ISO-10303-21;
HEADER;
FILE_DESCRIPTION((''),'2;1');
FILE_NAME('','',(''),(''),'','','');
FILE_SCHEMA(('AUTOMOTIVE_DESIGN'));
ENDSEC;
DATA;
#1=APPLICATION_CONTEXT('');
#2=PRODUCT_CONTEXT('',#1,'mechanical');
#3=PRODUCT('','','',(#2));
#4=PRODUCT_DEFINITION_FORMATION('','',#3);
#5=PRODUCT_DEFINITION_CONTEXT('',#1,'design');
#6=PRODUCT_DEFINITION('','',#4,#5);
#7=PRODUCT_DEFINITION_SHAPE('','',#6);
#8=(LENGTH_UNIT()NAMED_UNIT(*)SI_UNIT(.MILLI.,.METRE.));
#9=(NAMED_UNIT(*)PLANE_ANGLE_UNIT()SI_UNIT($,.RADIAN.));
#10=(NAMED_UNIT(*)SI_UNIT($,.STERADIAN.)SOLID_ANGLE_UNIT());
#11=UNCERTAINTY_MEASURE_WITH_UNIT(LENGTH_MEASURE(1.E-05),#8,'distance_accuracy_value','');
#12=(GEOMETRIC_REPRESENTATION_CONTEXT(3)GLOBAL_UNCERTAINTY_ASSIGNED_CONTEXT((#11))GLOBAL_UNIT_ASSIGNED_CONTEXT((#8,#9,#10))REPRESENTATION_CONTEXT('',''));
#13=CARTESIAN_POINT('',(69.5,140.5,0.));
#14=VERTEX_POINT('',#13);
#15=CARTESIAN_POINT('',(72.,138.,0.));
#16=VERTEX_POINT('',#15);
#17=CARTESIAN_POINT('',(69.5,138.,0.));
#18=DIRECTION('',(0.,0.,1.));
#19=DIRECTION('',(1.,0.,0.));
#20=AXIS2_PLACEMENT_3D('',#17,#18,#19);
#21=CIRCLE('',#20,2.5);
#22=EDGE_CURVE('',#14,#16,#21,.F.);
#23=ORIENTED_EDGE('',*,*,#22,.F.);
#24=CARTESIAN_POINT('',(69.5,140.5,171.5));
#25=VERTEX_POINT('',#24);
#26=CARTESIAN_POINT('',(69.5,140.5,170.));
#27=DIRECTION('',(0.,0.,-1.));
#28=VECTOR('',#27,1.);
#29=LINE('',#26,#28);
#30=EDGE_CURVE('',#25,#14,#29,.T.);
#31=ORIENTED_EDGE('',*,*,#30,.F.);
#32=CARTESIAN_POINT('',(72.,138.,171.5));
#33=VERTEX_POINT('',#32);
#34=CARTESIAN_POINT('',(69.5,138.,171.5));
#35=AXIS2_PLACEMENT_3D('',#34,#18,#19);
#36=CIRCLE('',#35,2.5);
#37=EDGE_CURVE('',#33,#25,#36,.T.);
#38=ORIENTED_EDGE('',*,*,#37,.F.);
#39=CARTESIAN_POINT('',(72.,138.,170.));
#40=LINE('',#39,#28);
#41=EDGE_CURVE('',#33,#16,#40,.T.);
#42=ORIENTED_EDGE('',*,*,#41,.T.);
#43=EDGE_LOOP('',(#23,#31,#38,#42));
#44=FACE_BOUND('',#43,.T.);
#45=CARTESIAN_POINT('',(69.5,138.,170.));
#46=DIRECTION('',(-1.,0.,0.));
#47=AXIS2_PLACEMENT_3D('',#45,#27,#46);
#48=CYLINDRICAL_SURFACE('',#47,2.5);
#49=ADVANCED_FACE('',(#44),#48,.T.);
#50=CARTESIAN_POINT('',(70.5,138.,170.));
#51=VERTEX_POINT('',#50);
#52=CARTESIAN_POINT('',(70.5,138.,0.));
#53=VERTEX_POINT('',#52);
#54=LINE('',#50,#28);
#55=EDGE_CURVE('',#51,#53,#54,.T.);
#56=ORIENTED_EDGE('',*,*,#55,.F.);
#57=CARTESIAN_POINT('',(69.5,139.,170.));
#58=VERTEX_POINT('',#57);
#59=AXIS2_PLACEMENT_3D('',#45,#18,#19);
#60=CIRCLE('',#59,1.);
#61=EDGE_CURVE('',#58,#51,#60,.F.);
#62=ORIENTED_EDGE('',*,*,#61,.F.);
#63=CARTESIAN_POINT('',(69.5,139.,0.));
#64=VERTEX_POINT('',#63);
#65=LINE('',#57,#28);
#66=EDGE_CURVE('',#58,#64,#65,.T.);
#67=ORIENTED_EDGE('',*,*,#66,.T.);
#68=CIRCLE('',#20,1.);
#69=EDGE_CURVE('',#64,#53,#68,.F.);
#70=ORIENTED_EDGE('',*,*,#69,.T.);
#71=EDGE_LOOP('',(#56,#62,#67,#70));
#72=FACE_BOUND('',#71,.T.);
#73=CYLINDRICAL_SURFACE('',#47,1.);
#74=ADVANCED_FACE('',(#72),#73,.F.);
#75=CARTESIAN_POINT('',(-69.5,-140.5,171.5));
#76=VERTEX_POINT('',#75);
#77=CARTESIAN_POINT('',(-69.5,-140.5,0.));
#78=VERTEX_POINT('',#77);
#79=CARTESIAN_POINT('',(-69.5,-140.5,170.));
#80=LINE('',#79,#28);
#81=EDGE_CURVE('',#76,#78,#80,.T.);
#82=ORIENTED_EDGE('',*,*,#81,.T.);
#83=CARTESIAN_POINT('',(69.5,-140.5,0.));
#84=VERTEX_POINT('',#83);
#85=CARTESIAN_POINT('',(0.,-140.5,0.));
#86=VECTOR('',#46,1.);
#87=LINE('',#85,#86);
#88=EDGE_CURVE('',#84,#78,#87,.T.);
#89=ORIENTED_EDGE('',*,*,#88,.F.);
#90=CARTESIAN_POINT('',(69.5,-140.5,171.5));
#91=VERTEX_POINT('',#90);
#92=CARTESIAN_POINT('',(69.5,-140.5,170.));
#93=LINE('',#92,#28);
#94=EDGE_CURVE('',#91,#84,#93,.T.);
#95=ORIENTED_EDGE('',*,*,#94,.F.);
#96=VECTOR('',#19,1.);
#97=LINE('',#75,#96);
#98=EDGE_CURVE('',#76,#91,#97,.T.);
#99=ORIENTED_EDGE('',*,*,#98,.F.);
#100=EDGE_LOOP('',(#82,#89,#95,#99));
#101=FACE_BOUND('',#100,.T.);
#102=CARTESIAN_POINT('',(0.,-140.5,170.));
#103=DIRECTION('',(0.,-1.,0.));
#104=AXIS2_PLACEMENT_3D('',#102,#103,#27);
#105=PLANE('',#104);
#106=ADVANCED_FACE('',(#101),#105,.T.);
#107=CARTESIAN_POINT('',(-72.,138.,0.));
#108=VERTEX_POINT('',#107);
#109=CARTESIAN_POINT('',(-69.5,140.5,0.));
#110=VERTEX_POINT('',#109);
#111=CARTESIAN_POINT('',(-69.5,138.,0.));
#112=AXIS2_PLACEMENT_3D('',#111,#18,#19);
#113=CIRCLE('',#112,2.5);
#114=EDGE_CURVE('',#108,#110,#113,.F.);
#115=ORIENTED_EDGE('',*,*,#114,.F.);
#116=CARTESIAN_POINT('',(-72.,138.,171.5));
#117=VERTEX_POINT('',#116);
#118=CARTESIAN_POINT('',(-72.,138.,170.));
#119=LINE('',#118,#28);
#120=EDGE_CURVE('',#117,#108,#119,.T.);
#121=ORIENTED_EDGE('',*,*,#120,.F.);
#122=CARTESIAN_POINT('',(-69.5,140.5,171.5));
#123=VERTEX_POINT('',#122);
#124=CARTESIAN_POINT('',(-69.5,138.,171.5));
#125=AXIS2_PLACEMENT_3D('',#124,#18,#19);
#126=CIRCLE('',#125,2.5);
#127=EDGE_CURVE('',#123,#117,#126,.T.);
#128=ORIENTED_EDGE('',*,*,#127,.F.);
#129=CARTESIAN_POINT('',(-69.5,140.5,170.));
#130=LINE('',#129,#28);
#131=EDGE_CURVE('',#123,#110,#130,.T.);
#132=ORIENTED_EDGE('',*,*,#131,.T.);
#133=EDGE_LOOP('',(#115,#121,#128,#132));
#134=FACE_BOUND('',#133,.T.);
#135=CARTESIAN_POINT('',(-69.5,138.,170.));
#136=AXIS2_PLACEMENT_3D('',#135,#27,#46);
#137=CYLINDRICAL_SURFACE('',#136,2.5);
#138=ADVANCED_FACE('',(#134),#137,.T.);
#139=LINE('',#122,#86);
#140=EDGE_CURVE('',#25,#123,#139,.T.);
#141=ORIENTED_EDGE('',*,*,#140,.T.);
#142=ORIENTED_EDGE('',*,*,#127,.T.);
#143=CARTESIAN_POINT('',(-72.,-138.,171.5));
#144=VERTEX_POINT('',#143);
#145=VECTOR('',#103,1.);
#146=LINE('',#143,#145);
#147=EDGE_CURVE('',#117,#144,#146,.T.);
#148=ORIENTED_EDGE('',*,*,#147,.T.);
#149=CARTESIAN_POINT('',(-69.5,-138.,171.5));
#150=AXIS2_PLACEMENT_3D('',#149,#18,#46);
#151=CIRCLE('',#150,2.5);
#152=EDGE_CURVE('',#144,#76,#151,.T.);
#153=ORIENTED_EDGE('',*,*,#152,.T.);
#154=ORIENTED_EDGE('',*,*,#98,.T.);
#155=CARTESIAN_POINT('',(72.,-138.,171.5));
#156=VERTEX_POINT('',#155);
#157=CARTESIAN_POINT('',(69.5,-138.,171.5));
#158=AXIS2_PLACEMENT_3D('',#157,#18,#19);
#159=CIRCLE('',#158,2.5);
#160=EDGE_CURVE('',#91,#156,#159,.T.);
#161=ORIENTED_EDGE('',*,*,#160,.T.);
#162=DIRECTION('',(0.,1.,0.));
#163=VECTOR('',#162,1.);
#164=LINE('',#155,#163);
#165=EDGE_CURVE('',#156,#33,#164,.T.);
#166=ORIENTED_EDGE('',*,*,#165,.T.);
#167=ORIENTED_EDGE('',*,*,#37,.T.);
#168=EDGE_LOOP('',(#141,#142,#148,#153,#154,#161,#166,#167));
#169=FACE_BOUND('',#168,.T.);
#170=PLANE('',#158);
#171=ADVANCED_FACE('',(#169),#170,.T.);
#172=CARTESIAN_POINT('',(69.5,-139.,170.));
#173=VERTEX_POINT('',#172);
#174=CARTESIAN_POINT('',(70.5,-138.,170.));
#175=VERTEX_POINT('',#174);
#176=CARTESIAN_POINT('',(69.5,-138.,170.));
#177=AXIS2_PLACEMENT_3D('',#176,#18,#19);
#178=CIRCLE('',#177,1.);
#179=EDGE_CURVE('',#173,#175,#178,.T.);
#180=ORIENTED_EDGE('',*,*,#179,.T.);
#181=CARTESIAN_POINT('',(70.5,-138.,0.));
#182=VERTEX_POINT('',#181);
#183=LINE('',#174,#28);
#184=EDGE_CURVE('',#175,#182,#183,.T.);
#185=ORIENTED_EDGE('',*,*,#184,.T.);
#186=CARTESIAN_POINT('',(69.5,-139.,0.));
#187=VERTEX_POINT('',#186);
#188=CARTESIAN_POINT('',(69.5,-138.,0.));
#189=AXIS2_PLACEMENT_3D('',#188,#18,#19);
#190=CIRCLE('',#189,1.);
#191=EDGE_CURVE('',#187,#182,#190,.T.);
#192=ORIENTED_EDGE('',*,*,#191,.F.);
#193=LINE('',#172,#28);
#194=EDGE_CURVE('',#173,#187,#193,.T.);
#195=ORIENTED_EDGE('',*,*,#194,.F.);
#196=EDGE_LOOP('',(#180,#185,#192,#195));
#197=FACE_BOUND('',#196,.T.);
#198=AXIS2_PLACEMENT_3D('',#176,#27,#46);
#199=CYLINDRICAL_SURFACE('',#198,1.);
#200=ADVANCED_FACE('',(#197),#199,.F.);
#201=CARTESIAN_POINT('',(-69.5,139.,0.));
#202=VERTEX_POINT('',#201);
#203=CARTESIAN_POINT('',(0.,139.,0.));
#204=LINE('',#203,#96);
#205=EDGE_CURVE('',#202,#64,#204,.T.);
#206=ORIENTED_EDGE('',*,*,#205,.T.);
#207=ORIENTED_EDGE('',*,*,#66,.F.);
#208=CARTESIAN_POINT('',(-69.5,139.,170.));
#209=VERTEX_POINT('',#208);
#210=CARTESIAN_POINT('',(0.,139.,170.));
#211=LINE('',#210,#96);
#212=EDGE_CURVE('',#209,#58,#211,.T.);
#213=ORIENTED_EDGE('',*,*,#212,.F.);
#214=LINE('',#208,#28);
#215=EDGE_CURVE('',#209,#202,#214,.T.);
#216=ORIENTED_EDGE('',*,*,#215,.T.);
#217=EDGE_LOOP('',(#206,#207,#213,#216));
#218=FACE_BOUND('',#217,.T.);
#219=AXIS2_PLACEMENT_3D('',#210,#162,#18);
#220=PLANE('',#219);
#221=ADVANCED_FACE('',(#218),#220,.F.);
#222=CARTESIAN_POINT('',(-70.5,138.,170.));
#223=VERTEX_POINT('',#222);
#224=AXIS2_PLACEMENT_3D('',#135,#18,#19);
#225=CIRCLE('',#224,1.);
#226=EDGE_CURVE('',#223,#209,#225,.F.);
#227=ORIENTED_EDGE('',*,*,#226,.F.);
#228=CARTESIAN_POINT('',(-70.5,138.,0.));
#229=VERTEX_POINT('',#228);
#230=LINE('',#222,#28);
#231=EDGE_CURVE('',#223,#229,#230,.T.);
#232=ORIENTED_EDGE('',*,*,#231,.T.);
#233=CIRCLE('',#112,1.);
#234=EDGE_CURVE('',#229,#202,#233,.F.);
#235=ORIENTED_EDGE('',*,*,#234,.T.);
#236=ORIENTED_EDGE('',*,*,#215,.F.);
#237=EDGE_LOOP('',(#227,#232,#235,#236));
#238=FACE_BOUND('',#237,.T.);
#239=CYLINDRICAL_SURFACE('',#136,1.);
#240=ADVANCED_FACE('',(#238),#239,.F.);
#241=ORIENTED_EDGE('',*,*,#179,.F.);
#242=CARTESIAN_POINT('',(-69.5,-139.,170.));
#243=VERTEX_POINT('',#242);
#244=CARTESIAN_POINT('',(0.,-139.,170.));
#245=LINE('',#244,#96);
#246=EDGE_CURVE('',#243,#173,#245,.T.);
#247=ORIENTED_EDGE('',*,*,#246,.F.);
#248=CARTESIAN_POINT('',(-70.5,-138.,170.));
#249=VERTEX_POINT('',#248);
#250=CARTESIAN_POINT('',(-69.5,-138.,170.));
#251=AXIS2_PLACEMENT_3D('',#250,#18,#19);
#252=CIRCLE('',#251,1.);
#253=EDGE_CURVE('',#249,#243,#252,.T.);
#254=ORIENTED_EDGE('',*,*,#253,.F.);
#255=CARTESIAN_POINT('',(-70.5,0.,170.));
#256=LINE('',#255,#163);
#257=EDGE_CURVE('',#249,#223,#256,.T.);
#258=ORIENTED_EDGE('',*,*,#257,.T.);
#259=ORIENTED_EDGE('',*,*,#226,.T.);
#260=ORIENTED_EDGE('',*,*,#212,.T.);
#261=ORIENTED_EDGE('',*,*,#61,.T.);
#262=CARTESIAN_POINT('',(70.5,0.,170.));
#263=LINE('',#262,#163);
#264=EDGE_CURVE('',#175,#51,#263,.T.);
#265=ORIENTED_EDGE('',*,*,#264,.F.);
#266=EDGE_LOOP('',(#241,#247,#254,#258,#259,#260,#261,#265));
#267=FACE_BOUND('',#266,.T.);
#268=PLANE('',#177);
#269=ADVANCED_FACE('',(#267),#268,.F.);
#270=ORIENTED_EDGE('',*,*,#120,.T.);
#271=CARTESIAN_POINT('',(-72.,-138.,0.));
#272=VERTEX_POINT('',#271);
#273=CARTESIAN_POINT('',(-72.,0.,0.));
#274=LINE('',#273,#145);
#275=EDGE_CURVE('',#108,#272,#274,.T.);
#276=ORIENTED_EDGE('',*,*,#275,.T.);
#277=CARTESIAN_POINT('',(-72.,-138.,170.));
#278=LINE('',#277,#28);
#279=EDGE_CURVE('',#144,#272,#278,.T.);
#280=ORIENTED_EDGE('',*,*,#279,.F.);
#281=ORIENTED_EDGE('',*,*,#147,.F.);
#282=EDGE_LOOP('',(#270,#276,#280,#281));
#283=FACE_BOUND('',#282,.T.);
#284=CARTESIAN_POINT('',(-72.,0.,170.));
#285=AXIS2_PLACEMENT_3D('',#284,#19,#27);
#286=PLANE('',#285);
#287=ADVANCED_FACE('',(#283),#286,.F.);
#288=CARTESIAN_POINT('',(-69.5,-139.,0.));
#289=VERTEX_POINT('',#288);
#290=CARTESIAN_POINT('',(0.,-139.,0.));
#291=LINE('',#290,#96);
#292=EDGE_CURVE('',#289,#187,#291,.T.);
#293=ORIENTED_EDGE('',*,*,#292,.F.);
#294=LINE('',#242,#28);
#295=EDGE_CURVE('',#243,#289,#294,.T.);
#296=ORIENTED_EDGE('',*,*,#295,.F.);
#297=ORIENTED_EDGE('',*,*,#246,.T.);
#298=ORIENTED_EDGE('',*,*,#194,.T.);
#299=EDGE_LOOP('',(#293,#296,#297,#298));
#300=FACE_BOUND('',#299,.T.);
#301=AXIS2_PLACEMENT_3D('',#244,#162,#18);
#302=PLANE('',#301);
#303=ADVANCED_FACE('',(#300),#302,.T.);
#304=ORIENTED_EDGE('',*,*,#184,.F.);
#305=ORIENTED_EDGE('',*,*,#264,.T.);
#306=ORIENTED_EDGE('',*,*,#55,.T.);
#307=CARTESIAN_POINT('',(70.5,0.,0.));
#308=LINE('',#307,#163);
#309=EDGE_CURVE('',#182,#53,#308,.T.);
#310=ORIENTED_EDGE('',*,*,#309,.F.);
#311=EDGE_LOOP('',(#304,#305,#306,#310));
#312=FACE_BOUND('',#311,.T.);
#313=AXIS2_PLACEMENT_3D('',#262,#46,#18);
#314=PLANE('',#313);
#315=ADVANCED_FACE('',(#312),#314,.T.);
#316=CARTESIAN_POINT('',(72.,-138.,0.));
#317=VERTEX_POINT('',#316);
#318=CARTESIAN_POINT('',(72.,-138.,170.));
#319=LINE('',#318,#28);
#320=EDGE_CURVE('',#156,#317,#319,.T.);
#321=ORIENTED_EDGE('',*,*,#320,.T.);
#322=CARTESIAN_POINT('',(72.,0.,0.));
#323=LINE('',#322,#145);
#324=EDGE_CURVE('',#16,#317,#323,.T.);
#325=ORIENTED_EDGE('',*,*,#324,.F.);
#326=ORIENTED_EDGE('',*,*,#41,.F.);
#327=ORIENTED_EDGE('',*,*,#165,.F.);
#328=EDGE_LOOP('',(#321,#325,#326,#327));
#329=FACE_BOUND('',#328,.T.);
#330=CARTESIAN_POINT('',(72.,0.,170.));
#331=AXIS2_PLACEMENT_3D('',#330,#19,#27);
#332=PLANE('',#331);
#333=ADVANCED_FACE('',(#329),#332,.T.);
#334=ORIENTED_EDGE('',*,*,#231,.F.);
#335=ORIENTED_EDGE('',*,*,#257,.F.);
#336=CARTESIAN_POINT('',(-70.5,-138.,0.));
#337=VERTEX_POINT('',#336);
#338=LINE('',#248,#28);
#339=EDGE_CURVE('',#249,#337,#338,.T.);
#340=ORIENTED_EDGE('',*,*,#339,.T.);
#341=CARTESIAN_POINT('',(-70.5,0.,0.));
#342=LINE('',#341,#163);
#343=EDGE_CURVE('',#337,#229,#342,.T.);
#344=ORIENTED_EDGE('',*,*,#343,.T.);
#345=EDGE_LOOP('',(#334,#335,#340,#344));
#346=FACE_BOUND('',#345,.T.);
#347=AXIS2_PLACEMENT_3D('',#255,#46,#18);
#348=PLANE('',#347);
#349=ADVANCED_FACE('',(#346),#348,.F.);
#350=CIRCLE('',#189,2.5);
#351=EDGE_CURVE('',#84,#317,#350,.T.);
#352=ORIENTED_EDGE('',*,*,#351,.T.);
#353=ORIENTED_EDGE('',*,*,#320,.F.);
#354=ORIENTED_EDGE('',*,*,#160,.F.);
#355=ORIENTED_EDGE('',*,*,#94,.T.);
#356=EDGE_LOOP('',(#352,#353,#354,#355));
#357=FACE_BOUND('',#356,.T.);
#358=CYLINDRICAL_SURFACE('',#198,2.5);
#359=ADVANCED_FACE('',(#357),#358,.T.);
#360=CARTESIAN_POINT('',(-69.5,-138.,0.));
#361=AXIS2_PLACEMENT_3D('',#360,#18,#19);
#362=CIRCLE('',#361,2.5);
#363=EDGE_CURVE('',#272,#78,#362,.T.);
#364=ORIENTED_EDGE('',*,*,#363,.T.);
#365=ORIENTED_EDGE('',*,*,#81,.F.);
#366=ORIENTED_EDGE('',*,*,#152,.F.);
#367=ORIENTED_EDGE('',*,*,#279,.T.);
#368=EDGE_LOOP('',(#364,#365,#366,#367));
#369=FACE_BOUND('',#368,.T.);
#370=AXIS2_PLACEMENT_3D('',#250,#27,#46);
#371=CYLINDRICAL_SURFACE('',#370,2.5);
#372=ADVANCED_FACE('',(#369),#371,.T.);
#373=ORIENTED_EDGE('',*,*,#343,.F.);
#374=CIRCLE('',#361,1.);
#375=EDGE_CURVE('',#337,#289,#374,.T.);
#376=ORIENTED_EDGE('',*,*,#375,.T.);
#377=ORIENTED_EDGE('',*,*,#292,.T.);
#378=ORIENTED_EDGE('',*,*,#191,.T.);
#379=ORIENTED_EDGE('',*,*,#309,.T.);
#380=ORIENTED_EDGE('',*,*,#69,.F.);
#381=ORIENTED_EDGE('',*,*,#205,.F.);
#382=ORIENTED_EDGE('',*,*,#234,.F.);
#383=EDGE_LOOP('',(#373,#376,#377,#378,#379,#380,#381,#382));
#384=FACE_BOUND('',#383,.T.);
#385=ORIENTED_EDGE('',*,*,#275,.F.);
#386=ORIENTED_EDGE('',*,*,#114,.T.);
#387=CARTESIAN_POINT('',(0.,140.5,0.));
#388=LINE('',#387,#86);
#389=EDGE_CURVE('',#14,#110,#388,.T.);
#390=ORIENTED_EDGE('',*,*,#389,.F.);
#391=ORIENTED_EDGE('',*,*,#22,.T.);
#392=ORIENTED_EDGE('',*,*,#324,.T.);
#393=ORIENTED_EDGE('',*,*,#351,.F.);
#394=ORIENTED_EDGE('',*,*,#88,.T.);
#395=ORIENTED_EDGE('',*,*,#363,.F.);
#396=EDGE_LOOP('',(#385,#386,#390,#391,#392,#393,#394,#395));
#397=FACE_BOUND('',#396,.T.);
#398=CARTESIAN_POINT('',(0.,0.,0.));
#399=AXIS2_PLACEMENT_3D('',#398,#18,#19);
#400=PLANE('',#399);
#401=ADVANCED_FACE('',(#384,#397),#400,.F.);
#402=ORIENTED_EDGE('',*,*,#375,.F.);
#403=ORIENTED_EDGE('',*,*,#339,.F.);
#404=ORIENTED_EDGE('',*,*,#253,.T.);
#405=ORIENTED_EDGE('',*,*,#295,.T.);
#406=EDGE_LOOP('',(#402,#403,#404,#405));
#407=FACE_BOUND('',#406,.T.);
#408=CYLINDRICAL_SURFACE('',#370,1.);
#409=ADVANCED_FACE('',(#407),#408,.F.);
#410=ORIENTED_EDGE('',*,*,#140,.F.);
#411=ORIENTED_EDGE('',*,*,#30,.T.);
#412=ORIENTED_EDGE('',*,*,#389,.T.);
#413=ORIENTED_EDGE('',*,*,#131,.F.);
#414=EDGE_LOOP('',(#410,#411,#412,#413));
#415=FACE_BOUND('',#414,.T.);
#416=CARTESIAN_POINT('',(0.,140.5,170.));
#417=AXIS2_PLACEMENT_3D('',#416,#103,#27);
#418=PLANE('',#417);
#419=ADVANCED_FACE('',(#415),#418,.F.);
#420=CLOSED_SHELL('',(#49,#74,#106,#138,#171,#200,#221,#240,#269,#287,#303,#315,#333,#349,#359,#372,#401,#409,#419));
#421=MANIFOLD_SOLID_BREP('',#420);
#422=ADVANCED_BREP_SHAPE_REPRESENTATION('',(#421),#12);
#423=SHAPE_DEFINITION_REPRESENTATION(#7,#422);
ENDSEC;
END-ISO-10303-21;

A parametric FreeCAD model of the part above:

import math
import FreeCAD as App
import Part
import Sketcher

V = App.Vector

doc = App.newDocument("Part")
params = doc.addObject("Spreadsheet::Sheet", "Params")
for row, (alias, value) in enumerate([
    ("sketch1_radius", "1 mm"),
    ("sketch1_radius2", "2.5 mm"),
    ("sketch1_width", "139 mm"),
    ("sketch1_height", "276 mm"),
    ("pad1_length", "170 mm"),
    ("sketch2_radius", "2.5 mm"),
    ("sketch2_width", "139 mm"),
    ("sketch2_height", "276 mm"),
    ("pad2_length", "1.5 mm"),
], start=1):
    params.set(f"A{row}", alias)
    params.set(f"B{row}", "=" + value)
    params.setAlias(f"B{row}", alias)

body = doc.addObject("PartDesign::Body", "Body")

sketch1 = body.newObject("Sketcher::SketchObject", "Sketch")
sketch1.AttachmentSupport = (doc.getObject("XY_Plane"), [""])
sketch1.MapMode = "FlatFace"
sketch1.addGeometry([
    Part.LineSegment(V(69.5, 140.5, 0), V(-69.5, 140.5, 0)),
    Part.ArcOfCircle(Part.Circle(V(-69.5, 138, 0), V(0, 0, 1), 2.5), math.radians(90), math.radians(180)),
    Part.LineSegment(V(-72, 138, 0), V(-72, -138, 0)),
    Part.ArcOfCircle(Part.Circle(V(-69.5, -138, 0), V(0, 0, 1), 2.5), math.radians(180), math.radians(270)),
    Part.LineSegment(V(-69.5, -140.5, 0), V(69.5, -140.5, 0)),
    Part.ArcOfCircle(Part.Circle(V(69.5, -138, 0), V(0, 0, 1), 2.5), math.radians(-90), math.radians(0)),
    Part.LineSegment(V(72, -138, 0), V(72, 138, 0)),
    Part.ArcOfCircle(Part.Circle(V(69.5, 138, 0), V(0, 0, 1), 2.5), math.radians(0), math.radians(90)),
    Part.LineSegment(V(69.5, -139, 0), V(-69.5, -139, 0)),
    Part.ArcOfCircle(Part.Circle(V(-69.5, -138, 0), V(0, 0, 1), 1), math.radians(-180), math.radians(-90)),
    Part.LineSegment(V(-70.5, -138, 0), V(-70.5, 138, 0)),
    Part.ArcOfCircle(Part.Circle(V(-69.5, 138, 0), V(0, 0, 1), 1), math.radians(90), math.radians(180)),
    Part.LineSegment(V(-69.5, 139, 0), V(69.5, 139, 0)),
    Part.ArcOfCircle(Part.Circle(V(69.5, 138, 0), V(0, 0, 1), 1), math.radians(0), math.radians(90)),
    Part.LineSegment(V(70.5, 138, 0), V(70.5, -138, 0)),
    Part.ArcOfCircle(Part.Circle(V(69.5, -138, 0), V(0, 0, 1), 1), math.radians(-90), math.radians(0)),
], False)
sketch1.addConstraint([
    Sketcher.Constraint("Tangent", 0, 2, 1, 1),
    Sketcher.Constraint("Tangent", 1, 2, 2, 1),
    Sketcher.Constraint("Tangent", 2, 2, 3, 1),
    Sketcher.Constraint("Tangent", 3, 2, 4, 1),
    Sketcher.Constraint("Tangent", 4, 2, 5, 1),
    Sketcher.Constraint("Tangent", 5, 2, 6, 1),
    Sketcher.Constraint("Tangent", 6, 2, 7, 1),
    Sketcher.Constraint("Tangent", 7, 2, 0, 1),
    Sketcher.Constraint("Tangent", 8, 2, 9, 2),
    Sketcher.Constraint("Tangent", 9, 1, 10, 1),
    Sketcher.Constraint("Tangent", 10, 2, 11, 2),
    Sketcher.Constraint("Tangent", 11, 1, 12, 1),
    Sketcher.Constraint("Tangent", 12, 2, 13, 2),
    Sketcher.Constraint("Tangent", 13, 1, 14, 1),
    Sketcher.Constraint("Tangent", 14, 2, 15, 2),
    Sketcher.Constraint("Tangent", 15, 1, 8, 1),
    Sketcher.Constraint("Horizontal", 0),
    Sketcher.Constraint("Vertical", 2),
    Sketcher.Constraint("Horizontal", 4),
    Sketcher.Constraint("Vertical", 6),
    Sketcher.Constraint("Horizontal", 8),
    Sketcher.Constraint("Vertical", 10),
    Sketcher.Constraint("Horizontal", 12),
    Sketcher.Constraint("Vertical", 14),
    Sketcher.Constraint("Coincident", 9, 3, 3, 3),
    Sketcher.Constraint("Coincident", 11, 3, 1, 3),
    Sketcher.Constraint("Coincident", 13, 3, 7, 3),
    Sketcher.Constraint("Equal", 1, 3),
    Sketcher.Constraint("Equal", 3, 5),
    Sketcher.Constraint("Equal", 5, 7),
    Sketcher.Constraint("Equal", 13, 15),
    Sketcher.Constraint("Symmetric", 1, 3, 5, 3, -1, 1),
    Sketcher.Constraint("Radius", 9, 1.0),
    Sketcher.Constraint("Radius", 1, 2.5),
    Sketcher.Constraint("DistanceX", 0, 2, 0, 1, 139.0),
    Sketcher.Constraint("DistanceY", 2, 2, 2, 1, 276.0),
])
sketch1.setExpression("Constraints[32]", "Params.sketch1_radius")
sketch1.setExpression("Constraints[33]", "Params.sketch1_radius2")
sketch1.setExpression("Constraints[34]", "Params.sketch1_width")
sketch1.setExpression("Constraints[35]", "Params.sketch1_height")
pad1 = body.newObject("PartDesign::Pad", "Pad")
pad1.Profile = sketch1
pad1.setExpression("Length", "Params.pad1_length")

sketch2 = body.newObject("Sketcher::SketchObject", "Sketch001")
sketch2.AttachmentSupport = (doc.getObject("XY_Plane"), [""])
sketch2.MapMode = "FlatFace"
sketch2.AttachmentOffset = App.Placement(V(0, 0, 170), App.Rotation())
sketch2.addGeometry([
    Part.LineSegment(V(-69.5, -140.5, 0), V(69.5, -140.5, 0)),
    Part.ArcOfCircle(Part.Circle(V(69.5, -138, 0), V(0, 0, 1), 2.5), math.radians(-90), math.radians(0)),
    Part.LineSegment(V(72, -138, 0), V(72, 138, 0)),
    Part.ArcOfCircle(Part.Circle(V(69.5, 138, 0), V(0, 0, 1), 2.5), math.radians(0), math.radians(90)),
    Part.LineSegment(V(69.5, 140.5, 0), V(-69.5, 140.5, 0)),
    Part.ArcOfCircle(Part.Circle(V(-69.5, 138, 0), V(0, 0, 1), 2.5), math.radians(90), math.radians(180)),
    Part.LineSegment(V(-72, 138, 0), V(-72, -138, 0)),
    Part.ArcOfCircle(Part.Circle(V(-69.5, -138, 0), V(0, 0, 1), 2.5), math.radians(180), math.radians(270)),
], False)
sketch2.addConstraint([
    Sketcher.Constraint("Tangent", 0, 2, 1, 1),
    Sketcher.Constraint("Tangent", 1, 2, 2, 1),
    Sketcher.Constraint("Tangent", 2, 2, 3, 1),
    Sketcher.Constraint("Tangent", 3, 2, 4, 1),
    Sketcher.Constraint("Tangent", 4, 2, 5, 1),
    Sketcher.Constraint("Tangent", 5, 2, 6, 1),
    Sketcher.Constraint("Tangent", 6, 2, 7, 1),
    Sketcher.Constraint("Tangent", 7, 2, 0, 1),
    Sketcher.Constraint("Horizontal", 0),
    Sketcher.Constraint("Vertical", 2),
    Sketcher.Constraint("Horizontal", 4),
    Sketcher.Constraint("Vertical", 6),
    Sketcher.Constraint("Equal", 1, 3),
    Sketcher.Constraint("Equal", 3, 5),
    Sketcher.Constraint("Equal", 5, 7),
    Sketcher.Constraint("Symmetric", 1, 3, 5, 3, -1, 1),
    Sketcher.Constraint("Radius", 1, 2.5),
    Sketcher.Constraint("DistanceX", 0, 1, 0, 2, 139.0),
    Sketcher.Constraint("DistanceY", 2, 1, 2, 2, 276.0),
])
sketch2.setExpression("Constraints[16]", "Params.sketch2_radius")
sketch2.setExpression("Constraints[17]", "Params.sketch2_width")
sketch2.setExpression("Constraints[18]", "Params.sketch2_height")
pad2 = body.newObject("PartDesign::Pad", "Pad001")
pad2.Profile = sketch2
pad2.setExpression("Length", "Params.pad2_length")

doc.recompute()
